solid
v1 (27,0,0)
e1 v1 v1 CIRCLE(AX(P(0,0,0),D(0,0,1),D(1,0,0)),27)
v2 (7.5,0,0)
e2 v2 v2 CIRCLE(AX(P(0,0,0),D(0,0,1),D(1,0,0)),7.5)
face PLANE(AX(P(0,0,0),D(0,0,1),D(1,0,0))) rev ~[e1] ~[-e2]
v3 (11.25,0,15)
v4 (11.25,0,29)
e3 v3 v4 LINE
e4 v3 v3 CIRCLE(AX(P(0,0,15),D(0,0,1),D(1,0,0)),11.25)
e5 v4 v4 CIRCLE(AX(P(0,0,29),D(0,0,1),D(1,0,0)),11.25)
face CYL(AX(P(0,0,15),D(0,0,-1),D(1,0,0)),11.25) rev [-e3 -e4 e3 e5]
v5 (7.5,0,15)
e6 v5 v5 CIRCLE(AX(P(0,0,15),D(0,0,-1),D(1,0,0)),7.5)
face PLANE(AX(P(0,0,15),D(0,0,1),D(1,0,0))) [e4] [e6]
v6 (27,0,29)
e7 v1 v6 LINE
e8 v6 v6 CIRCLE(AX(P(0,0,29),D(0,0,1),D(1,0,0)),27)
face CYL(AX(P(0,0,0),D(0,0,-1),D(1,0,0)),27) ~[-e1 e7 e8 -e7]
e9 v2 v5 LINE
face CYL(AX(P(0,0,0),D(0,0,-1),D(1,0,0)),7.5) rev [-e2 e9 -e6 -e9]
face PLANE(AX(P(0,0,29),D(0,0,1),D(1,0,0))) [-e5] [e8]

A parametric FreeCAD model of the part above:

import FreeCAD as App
import Part
import Sketcher

V = App.Vector
Q = App.Units.Quantity

doc = App.newDocument("Part")
body = doc.addObject("PartDesign::Body", "Body")

sketch1 = doc.addObject("Sketcher::SketchObject", "Sketch")
body.addObject(sketch1)
sketch1.AttachmentSupport = (doc.XY_Plane, [""])
sketch1.MapMode = "FlatFace"
sketch1.AttachmentOffset = App.Placement(V(0, 0, 15), App.Rotation())
sketch1.addGeometry(Part.Circle(V(0, 0, 0), V(0, 0, 1), 11), False)
sketch1.addConstraint(Sketcher.Constraint("Coincident", 0, 3, -1, 1))
sketch1.addConstraint(Sketcher.Constraint("Diameter", 0, Q("22.5 mm")))
pad1 = doc.addObject("PartDesign::Pad", "Pad")
body.addObject(pad1)
pad1.Profile = sketch1
pad1.Length = 14
body2 = doc.addObject("PartDesign::Body", "Body001")

sketch2 = doc.addObject("Sketcher::SketchObject", "Sketch001")
body2.addObject(sketch2)
sketch2.AttachmentSupport = (doc.getObject("XY_Plane001"), [""])
sketch2.MapMode = "FlatFace"
sketch2.addGeometry(Part.Circle(V(0, 0, 0), V(0, 0, 1), 8), False)
sketch2.addConstraint(Sketcher.Constraint("Coincident", 0, 3, -1, 1))
sketch2.addConstraint(Sketcher.Constraint("Diameter", 0, Q("15 mm")))
pad2 = doc.addObject("PartDesign::Pad", "Pad001")
body2.addObject(pad2)
pad2.Profile = sketch2
pad2.Length = 29
doc.recompute()

boolean = doc.addObject("PartDesign::Boolean", "Boolean")
body2.addObject(boolean)
boolean.Type = "Fuse"
boolean.addObjects([body])
body3 = doc.addObject("PartDesign::Body", "Body002")

sketch3 = doc.addObject("Sketcher::SketchObject", "Sketch002")
body3.addObject(sketch3)
sketch3.AttachmentSupport = (doc.getObject("XY_Plane002"), [""])
sketch3.MapMode = "FlatFace"
sketch3.addGeometry(Part.Circle(V(0, 0, 0), V(0, 0, 1), 27), False)
sketch3.addConstraint(Sketcher.Constraint("Coincident", 0, 3, -1, 1))
sketch3.addConstraint(Sketcher.Constraint("Diameter", 0, Q("54 mm")))
pad3 = doc.addObject("PartDesign::Pad", "Pad002")
body3.addObject(pad3)
pad3.Profile = sketch3
pad3.Length = 29
doc.recompute()

boolean2 = doc.addObject("PartDesign::Boolean", "Boolean001")
body3.addObject(boolean2)
boolean2.Type = "Cut"
boolean2.addObjects([body2])

doc.recompute()
